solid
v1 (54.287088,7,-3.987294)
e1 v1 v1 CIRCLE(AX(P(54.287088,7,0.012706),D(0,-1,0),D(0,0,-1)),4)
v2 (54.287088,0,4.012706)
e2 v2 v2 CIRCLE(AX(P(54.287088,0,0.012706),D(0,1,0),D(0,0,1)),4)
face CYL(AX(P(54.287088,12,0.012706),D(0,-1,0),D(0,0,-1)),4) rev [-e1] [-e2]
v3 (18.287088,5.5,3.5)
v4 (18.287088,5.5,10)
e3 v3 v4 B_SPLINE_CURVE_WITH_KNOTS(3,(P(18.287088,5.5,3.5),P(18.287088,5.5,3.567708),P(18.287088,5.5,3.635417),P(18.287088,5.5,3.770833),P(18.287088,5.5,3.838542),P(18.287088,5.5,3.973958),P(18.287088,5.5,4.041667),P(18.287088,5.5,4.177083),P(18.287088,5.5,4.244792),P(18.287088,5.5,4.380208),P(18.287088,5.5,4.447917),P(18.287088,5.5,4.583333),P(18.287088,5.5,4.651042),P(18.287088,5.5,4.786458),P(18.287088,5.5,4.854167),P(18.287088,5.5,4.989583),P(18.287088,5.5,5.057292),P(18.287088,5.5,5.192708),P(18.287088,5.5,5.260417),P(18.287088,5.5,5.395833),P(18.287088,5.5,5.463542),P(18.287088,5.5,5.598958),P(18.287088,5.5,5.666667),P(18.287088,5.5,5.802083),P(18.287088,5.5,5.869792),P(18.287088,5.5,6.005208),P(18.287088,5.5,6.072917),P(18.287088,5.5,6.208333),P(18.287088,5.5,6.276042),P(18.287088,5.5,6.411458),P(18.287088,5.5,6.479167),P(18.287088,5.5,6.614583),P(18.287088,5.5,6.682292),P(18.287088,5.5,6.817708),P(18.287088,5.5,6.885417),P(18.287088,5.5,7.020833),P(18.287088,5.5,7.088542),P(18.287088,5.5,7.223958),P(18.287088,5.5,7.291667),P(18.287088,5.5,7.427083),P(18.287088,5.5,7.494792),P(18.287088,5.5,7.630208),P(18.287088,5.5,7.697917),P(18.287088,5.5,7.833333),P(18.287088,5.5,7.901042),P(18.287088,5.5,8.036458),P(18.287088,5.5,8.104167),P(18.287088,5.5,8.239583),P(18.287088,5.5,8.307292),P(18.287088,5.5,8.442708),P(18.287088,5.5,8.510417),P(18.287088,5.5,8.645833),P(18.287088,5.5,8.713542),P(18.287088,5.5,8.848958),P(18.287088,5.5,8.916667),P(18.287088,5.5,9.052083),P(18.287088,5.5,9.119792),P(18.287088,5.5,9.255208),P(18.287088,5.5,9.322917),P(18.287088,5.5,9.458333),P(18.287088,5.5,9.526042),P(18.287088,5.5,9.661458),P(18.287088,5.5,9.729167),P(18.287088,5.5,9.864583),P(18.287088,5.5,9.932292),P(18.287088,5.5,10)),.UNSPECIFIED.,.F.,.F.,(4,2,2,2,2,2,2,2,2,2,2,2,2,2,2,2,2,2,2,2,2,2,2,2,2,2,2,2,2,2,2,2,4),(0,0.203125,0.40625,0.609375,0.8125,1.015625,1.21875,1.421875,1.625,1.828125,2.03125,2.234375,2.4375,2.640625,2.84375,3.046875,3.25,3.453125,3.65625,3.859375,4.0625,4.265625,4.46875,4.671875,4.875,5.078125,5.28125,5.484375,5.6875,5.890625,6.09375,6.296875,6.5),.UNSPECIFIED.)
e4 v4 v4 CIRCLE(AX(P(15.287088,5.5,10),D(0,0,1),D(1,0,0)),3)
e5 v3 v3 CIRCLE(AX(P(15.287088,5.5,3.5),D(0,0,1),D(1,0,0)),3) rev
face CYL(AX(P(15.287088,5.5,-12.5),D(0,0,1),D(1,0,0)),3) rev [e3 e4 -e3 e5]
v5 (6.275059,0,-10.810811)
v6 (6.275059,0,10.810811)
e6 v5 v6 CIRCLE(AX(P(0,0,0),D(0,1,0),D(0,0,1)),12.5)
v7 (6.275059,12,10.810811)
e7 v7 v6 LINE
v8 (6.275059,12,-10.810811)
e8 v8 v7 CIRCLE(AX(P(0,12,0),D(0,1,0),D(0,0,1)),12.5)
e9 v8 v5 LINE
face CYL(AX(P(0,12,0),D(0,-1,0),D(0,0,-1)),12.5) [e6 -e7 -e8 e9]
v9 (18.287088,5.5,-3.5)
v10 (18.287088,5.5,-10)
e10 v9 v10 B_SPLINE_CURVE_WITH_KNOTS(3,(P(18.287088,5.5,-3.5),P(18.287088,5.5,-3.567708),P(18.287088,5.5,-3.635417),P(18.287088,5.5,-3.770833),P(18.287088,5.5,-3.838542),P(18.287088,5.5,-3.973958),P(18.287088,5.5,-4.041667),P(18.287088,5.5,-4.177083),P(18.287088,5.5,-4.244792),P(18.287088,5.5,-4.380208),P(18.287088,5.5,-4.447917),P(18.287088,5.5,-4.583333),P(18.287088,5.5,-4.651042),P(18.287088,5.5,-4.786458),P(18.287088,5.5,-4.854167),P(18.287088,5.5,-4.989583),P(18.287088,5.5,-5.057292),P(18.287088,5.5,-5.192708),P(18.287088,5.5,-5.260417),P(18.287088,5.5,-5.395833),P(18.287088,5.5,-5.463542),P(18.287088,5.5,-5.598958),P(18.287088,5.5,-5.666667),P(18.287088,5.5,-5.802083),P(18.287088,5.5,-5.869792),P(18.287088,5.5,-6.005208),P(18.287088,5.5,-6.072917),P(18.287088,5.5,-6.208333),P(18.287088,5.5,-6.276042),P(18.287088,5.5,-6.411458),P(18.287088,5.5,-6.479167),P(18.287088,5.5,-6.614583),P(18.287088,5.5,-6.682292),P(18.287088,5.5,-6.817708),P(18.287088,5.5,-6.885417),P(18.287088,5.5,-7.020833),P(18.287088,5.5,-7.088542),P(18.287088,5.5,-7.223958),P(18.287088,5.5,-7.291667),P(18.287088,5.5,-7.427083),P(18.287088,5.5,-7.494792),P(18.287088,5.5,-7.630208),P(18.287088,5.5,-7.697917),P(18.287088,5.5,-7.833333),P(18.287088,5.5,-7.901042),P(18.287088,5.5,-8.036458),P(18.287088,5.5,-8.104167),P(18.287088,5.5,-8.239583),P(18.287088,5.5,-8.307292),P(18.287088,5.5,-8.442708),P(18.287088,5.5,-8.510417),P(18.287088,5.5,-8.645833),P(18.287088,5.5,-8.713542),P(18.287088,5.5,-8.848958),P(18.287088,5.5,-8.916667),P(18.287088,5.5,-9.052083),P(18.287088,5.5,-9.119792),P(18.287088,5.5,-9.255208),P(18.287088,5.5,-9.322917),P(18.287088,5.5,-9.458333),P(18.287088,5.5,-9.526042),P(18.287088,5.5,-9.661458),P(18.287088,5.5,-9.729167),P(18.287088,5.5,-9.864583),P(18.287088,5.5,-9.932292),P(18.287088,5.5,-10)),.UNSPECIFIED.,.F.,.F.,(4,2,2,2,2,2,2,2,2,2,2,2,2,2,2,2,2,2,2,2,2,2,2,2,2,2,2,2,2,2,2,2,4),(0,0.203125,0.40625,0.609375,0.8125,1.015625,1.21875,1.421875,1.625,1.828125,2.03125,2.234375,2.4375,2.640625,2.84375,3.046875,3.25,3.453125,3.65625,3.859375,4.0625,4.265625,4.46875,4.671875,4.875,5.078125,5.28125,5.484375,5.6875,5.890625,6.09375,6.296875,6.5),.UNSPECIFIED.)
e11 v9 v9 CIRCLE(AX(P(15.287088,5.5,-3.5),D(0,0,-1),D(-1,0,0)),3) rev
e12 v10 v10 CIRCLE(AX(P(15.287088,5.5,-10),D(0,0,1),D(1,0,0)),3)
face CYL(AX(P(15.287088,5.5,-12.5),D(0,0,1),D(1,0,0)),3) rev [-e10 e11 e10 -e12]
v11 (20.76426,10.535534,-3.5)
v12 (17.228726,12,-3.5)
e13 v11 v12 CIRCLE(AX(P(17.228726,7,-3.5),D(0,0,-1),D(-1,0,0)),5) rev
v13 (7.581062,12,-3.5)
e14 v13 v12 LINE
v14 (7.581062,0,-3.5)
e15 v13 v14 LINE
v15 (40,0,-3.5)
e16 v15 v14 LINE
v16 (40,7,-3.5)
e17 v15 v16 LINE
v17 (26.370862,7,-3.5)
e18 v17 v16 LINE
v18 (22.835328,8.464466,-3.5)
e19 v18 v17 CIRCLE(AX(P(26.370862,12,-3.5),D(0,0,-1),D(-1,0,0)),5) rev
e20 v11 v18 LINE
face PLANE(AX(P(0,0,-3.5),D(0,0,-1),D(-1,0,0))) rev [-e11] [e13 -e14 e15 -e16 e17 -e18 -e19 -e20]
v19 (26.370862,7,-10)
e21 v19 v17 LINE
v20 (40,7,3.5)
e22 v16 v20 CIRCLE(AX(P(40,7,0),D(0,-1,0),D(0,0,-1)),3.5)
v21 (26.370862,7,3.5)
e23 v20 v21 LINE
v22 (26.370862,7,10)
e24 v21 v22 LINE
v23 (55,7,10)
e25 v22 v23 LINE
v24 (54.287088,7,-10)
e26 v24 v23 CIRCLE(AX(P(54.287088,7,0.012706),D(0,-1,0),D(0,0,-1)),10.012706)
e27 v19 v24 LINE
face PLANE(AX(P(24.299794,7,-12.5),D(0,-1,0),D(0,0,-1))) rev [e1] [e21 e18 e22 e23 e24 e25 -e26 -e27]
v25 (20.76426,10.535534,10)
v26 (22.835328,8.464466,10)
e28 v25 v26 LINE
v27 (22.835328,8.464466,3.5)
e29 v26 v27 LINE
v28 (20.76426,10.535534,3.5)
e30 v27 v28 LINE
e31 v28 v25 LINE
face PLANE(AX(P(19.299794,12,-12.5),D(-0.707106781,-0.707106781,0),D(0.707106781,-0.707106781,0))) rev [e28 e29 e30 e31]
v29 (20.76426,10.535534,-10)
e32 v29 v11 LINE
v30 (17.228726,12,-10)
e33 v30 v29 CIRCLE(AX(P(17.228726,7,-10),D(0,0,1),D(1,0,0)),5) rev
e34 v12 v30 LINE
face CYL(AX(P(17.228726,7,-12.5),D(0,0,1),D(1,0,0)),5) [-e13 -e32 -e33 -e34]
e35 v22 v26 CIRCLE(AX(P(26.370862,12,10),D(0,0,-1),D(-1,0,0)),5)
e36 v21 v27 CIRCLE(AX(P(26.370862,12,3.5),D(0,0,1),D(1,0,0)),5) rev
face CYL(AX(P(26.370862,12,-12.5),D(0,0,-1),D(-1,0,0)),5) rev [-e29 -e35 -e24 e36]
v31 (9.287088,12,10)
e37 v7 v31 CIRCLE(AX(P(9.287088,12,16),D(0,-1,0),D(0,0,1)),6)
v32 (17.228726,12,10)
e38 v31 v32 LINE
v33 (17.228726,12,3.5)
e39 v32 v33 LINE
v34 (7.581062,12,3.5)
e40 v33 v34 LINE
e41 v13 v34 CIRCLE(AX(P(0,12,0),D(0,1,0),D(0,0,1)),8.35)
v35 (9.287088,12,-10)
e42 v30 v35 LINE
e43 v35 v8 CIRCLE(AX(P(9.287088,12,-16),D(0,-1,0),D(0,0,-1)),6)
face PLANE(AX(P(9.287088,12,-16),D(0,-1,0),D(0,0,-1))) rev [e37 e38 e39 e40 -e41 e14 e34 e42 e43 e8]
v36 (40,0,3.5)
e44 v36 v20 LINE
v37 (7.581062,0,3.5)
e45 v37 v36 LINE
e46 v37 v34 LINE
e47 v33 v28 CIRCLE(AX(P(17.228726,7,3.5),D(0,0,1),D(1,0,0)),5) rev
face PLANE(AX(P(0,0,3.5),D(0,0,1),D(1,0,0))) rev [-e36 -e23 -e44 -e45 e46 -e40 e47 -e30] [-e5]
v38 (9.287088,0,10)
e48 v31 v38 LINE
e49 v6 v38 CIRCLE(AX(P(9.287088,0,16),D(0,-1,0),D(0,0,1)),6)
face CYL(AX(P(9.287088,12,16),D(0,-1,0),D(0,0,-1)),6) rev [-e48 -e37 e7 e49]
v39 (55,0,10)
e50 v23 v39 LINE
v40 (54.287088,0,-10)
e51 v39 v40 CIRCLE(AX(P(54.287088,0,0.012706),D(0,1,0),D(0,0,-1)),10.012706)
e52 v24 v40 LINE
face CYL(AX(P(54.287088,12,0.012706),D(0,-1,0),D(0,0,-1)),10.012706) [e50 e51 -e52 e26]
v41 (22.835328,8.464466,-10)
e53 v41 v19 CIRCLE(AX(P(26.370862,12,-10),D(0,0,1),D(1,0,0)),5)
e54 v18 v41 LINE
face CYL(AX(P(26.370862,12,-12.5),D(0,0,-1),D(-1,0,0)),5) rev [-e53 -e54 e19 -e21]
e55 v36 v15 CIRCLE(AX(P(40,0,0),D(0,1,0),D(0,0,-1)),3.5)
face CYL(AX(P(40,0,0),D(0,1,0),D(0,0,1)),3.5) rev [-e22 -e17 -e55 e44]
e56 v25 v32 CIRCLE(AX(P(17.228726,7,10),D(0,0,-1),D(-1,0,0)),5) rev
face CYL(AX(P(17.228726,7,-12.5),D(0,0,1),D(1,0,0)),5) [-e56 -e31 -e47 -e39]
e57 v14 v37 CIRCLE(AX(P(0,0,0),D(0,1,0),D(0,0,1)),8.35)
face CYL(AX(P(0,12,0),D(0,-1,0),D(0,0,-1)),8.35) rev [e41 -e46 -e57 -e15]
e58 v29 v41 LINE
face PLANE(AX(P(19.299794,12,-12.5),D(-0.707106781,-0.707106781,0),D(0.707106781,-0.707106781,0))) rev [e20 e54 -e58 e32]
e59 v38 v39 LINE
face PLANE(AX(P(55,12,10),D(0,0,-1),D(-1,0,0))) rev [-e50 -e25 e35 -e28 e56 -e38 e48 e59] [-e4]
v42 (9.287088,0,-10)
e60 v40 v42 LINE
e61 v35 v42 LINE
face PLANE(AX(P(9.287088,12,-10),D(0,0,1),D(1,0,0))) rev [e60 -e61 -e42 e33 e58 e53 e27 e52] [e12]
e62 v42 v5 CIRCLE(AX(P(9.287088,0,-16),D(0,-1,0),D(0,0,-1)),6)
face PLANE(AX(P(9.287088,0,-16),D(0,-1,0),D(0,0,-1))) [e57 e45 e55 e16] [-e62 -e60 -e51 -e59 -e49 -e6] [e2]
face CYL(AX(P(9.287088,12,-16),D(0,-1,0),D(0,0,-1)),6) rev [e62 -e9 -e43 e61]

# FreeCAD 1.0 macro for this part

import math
import FreeCAD as App
import Part
import Sketcher


def edges_at(feature, points):
    """Names of the edges that pass closest to the given points."""
    edges = feature.Shape.Edges
    near = lambda p: min(range(len(edges)), key=lambda i: edges[i].distToShape(Part.Vertex(*p))[0])
    return sorted({f"Edge{near(p) + 1}" for p in points})


def add_polygon(sketch, points):
    """Adds a closed chain of lines whose ends are joined by coincident constraints."""
    first, n = sketch.GeometryCount, len(points)
    for a, b in zip(points, points[1:] + points[:1]):
        sketch.addGeometry(Part.LineSegment(App.Vector(*a, 0), App.Vector(*b, 0)), False)
    for i in range(n):
        sketch.addConstraint(Sketcher.Constraint("Coincident", first + i, 2, first + (i + 1) % n, 1))

doc = App.newDocument("Part")
body = doc.addObject("PartDesign::Body", "Body")

# Sketch on XZ plane
sketch1 = doc.addObject("Sketcher::SketchObject", "Sketch")
body.addObject(sketch1)
sketch1.AttachmentSupport = (doc.XZ_Plane, [""])
sketch1.MapMode = "FlatFace"
sketch1.addGeometry([
    Part.LineSegment(App.Vector(54.287088, -10, 0), App.Vector(9.287088, -10, 0)),  # 0
    Part.ArcOfCircle(Part.Circle(App.Vector(9.287088, -16, 0), App.Vector(0, 0, 1), 6), math.radians(90), math.radians(120.132722)),  # 1
    Part.ArcOfCircle(Part.Circle(App.Vector(0, 0, 0), App.Vector(0, 0, 1), 12.5), math.radians(59.867278), math.radians(300.132722)),  # 2
    Part.ArcOfCircle(Part.Circle(App.Vector(9.287088, 16, 0), App.Vector(0, 0, 1), 6), math.radians(-120.132722), math.radians(-90)),  # 3
    Part.LineSegment(App.Vector(9.287088, 10, 0), App.Vector(55, 10, 0)),  # 4
    Part.ArcOfCircle(Part.Circle(App.Vector(54.287088, 0.012706, 0), App.Vector(0, 0, 1), 10.012706), math.radians(-90), math.radians(85.917043)),  # 5
    Part.Circle(App.Vector(54.287088, 0.012706, 0), App.Vector(0, 0, 1), 4),  # 6
    Part.Circle(App.Vector(0, 0, 0), App.Vector(0, 0, 1), 8.35),  # 7
], False)
sketch1.addConstraint([
    Sketcher.Constraint("Tangent", 0, 2, 1, 1),
    Sketcher.Constraint("Tangent", 1, 2, 2, 2),
    Sketcher.Constraint("Tangent", 2, 1, 3, 1),
    Sketcher.Constraint("Tangent", 3, 2, 4, 1),
    Sketcher.Constraint("Coincident", 4, 2, 5, 2),
    Sketcher.Constraint("Tangent", 5, 1, 0, 1),
    Sketcher.Constraint("Horizontal", 0),
    Sketcher.Constraint("Horizontal", 4),
    Sketcher.Constraint("Coincident", 2, 3, -1, 1),
    Sketcher.Constraint("Coincident", 7, 3, -1, 1),
    Sketcher.Constraint("Coincident", 6, 3, 5, 3),
    Sketcher.Constraint("Equal", 1, 3),
    Sketcher.Constraint("Vertical", 1, 3, 3, 3),
    Sketcher.Constraint("Diameter", 6, 8.0),
    Sketcher.Constraint("Radius", 1, 6.0),
    Sketcher.Constraint("Diameter", 7, 16.7),
    Sketcher.Constraint("Radius", 2, 12.5),
    Sketcher.Constraint("DistanceX", 0, 2, 0, 1, 45.0),
    Sketcher.Constraint("DistanceY", 1, 3, -1, 1, 16.0),
    Sketcher.Constraint("DistanceX", -1, 1, 4, 2, 55.0),
])
pad1 = doc.addObject("PartDesign::Pad", "Pad")
body.addObject(pad1)
pad1.Profile = sketch1
pad1.Length = 12
pad1.Reversed = True

# Sketch on XY plane
sketch2 = doc.addObject("Sketcher::SketchObject", "Sketch001")
body.addObject(sketch2)
sketch2.AttachmentSupport = (doc.XY_Plane, [""])
sketch2.MapMode = "FlatFace"
sketch2.AttachmentOffset = App.Placement(App.Vector(0, 0, 10), App.Rotation())
add_polygon(sketch2, [(19.299794, 12), (24.299794, 7), (64.299794, 7), (64.299794, 12)])  # lines 0-3
sketch2.addConstraint([
    Sketcher.Constraint("Horizontal", 1),
    Sketcher.Constraint("Vertical", 2),
    Sketcher.Constraint("Horizontal", 3),
    Sketcher.Constraint("DistanceX", 1, 1, 1, 2, 40.0),
    Sketcher.Constraint("DistanceX", 3, 2, 3, 1, 45.0),
    Sketcher.Constraint("DistanceY", 2, 1, 2, 2, 5.0),
    Sketcher.Constraint("DistanceY", -1, 1, 0, 2, 7.0),
    Sketcher.Constraint("DistanceX", -1, 1, 0, 2, 24.299794),
])
pocket1 = doc.addObject("PartDesign::Pocket", "Pocket")
body.addObject(pocket1)
pocket1.Profile = sketch2
pocket1.Type = "ThroughAll"

# Sketch on XY plane
sketch3 = doc.addObject("Sketcher::SketchObject", "Sketch002")
body.addObject(sketch3)
sketch3.AttachmentSupport = (doc.XY_Plane, [""])
sketch3.MapMode = "FlatFace"
sketch3.AttachmentOffset = App.Placement(App.Vector(0, 0, 10), App.Rotation())
sketch3.addGeometry(Part.Circle(App.Vector(15.287088, 5.5, 0), App.Vector(0, 0, 1), 3), False)
sketch3.addConstraint([
    Sketcher.Constraint("Diameter", 0, 6.0),
    Sketcher.Constraint("DistanceY", -1, 1, 0, 3, 5.5),
    Sketcher.Constraint("DistanceX", -1, 1, 0, 3, 15.287088),
])
pocket2 = doc.addObject("PartDesign::Pocket", "Pocket001")
body.addObject(pocket2)
pocket2.Profile = sketch3
pocket2.Type = "ThroughAll"
doc.recompute()

fillet = doc.addObject("PartDesign::Fillet", "Fillet")
body.addObject(fillet)
fillet.Base = (pocket2, edges_at(pocket2, [(24.3, 7, 0), (19.3, 12, 0)]))
fillet.Radius = 5

# Sketch on XZ plane
sketch4 = doc.addObject("Sketcher::SketchObject", "Sketch003")
body.addObject(sketch4)
sketch4.AttachmentSupport = (doc.XZ_Plane, [""])
sketch4.MapMode = "FlatFace"
sketch4.AttachmentOffset = App.Placement(App.Vector(0, 0, -12), App.Rotation())
sketch4.addGeometry([
    Part.LineSegment(App.Vector(0, 3.5, 0), App.Vector(40, 3.5, 0)),
    Part.ArcOfCircle(Part.Circle(App.Vector(40, 0, 0), App.Vector(0, 0, 1), 3.5), math.radians(-90), math.radians(90)),
    Part.LineSegment(App.Vector(40, -3.5, 0), App.Vector(0, -3.5, 0)),
    Part.LineSegment(App.Vector(0, -3.5, 0), App.Vector(0, 3.5, 0)),
], False)
sketch4.addConstraint([
    Sketcher.Constraint("Tangent", 0, 2, 1, 2),
    Sketcher.Constraint("Tangent", 1, 1, 2, 1),
    Sketcher.Constraint("Coincident", 2, 2, 3, 1),
    Sketcher.Constraint("Coincident", 3, 2, 0, 1),
    Sketcher.Constraint("Horizontal", 0),
    Sketcher.Constraint("Horizontal", 2),
    Sketcher.Constraint("Vertical", 3),
    Sketcher.Constraint("Symmetric", 2, 2, 3, 2, -1, 1),
    Sketcher.Constraint("Radius", 1, 3.5),
    Sketcher.Constraint("DistanceX", 0, 1, 0, 2, 40.0),
])
pocket3 = doc.addObject("PartDesign::Pocket", "Pocket002")
body.addObject(pocket3)
pocket3.Profile = sketch4
pocket3.Type = "ThroughAll"
pocket3.Midplane = True

doc.recompute()
